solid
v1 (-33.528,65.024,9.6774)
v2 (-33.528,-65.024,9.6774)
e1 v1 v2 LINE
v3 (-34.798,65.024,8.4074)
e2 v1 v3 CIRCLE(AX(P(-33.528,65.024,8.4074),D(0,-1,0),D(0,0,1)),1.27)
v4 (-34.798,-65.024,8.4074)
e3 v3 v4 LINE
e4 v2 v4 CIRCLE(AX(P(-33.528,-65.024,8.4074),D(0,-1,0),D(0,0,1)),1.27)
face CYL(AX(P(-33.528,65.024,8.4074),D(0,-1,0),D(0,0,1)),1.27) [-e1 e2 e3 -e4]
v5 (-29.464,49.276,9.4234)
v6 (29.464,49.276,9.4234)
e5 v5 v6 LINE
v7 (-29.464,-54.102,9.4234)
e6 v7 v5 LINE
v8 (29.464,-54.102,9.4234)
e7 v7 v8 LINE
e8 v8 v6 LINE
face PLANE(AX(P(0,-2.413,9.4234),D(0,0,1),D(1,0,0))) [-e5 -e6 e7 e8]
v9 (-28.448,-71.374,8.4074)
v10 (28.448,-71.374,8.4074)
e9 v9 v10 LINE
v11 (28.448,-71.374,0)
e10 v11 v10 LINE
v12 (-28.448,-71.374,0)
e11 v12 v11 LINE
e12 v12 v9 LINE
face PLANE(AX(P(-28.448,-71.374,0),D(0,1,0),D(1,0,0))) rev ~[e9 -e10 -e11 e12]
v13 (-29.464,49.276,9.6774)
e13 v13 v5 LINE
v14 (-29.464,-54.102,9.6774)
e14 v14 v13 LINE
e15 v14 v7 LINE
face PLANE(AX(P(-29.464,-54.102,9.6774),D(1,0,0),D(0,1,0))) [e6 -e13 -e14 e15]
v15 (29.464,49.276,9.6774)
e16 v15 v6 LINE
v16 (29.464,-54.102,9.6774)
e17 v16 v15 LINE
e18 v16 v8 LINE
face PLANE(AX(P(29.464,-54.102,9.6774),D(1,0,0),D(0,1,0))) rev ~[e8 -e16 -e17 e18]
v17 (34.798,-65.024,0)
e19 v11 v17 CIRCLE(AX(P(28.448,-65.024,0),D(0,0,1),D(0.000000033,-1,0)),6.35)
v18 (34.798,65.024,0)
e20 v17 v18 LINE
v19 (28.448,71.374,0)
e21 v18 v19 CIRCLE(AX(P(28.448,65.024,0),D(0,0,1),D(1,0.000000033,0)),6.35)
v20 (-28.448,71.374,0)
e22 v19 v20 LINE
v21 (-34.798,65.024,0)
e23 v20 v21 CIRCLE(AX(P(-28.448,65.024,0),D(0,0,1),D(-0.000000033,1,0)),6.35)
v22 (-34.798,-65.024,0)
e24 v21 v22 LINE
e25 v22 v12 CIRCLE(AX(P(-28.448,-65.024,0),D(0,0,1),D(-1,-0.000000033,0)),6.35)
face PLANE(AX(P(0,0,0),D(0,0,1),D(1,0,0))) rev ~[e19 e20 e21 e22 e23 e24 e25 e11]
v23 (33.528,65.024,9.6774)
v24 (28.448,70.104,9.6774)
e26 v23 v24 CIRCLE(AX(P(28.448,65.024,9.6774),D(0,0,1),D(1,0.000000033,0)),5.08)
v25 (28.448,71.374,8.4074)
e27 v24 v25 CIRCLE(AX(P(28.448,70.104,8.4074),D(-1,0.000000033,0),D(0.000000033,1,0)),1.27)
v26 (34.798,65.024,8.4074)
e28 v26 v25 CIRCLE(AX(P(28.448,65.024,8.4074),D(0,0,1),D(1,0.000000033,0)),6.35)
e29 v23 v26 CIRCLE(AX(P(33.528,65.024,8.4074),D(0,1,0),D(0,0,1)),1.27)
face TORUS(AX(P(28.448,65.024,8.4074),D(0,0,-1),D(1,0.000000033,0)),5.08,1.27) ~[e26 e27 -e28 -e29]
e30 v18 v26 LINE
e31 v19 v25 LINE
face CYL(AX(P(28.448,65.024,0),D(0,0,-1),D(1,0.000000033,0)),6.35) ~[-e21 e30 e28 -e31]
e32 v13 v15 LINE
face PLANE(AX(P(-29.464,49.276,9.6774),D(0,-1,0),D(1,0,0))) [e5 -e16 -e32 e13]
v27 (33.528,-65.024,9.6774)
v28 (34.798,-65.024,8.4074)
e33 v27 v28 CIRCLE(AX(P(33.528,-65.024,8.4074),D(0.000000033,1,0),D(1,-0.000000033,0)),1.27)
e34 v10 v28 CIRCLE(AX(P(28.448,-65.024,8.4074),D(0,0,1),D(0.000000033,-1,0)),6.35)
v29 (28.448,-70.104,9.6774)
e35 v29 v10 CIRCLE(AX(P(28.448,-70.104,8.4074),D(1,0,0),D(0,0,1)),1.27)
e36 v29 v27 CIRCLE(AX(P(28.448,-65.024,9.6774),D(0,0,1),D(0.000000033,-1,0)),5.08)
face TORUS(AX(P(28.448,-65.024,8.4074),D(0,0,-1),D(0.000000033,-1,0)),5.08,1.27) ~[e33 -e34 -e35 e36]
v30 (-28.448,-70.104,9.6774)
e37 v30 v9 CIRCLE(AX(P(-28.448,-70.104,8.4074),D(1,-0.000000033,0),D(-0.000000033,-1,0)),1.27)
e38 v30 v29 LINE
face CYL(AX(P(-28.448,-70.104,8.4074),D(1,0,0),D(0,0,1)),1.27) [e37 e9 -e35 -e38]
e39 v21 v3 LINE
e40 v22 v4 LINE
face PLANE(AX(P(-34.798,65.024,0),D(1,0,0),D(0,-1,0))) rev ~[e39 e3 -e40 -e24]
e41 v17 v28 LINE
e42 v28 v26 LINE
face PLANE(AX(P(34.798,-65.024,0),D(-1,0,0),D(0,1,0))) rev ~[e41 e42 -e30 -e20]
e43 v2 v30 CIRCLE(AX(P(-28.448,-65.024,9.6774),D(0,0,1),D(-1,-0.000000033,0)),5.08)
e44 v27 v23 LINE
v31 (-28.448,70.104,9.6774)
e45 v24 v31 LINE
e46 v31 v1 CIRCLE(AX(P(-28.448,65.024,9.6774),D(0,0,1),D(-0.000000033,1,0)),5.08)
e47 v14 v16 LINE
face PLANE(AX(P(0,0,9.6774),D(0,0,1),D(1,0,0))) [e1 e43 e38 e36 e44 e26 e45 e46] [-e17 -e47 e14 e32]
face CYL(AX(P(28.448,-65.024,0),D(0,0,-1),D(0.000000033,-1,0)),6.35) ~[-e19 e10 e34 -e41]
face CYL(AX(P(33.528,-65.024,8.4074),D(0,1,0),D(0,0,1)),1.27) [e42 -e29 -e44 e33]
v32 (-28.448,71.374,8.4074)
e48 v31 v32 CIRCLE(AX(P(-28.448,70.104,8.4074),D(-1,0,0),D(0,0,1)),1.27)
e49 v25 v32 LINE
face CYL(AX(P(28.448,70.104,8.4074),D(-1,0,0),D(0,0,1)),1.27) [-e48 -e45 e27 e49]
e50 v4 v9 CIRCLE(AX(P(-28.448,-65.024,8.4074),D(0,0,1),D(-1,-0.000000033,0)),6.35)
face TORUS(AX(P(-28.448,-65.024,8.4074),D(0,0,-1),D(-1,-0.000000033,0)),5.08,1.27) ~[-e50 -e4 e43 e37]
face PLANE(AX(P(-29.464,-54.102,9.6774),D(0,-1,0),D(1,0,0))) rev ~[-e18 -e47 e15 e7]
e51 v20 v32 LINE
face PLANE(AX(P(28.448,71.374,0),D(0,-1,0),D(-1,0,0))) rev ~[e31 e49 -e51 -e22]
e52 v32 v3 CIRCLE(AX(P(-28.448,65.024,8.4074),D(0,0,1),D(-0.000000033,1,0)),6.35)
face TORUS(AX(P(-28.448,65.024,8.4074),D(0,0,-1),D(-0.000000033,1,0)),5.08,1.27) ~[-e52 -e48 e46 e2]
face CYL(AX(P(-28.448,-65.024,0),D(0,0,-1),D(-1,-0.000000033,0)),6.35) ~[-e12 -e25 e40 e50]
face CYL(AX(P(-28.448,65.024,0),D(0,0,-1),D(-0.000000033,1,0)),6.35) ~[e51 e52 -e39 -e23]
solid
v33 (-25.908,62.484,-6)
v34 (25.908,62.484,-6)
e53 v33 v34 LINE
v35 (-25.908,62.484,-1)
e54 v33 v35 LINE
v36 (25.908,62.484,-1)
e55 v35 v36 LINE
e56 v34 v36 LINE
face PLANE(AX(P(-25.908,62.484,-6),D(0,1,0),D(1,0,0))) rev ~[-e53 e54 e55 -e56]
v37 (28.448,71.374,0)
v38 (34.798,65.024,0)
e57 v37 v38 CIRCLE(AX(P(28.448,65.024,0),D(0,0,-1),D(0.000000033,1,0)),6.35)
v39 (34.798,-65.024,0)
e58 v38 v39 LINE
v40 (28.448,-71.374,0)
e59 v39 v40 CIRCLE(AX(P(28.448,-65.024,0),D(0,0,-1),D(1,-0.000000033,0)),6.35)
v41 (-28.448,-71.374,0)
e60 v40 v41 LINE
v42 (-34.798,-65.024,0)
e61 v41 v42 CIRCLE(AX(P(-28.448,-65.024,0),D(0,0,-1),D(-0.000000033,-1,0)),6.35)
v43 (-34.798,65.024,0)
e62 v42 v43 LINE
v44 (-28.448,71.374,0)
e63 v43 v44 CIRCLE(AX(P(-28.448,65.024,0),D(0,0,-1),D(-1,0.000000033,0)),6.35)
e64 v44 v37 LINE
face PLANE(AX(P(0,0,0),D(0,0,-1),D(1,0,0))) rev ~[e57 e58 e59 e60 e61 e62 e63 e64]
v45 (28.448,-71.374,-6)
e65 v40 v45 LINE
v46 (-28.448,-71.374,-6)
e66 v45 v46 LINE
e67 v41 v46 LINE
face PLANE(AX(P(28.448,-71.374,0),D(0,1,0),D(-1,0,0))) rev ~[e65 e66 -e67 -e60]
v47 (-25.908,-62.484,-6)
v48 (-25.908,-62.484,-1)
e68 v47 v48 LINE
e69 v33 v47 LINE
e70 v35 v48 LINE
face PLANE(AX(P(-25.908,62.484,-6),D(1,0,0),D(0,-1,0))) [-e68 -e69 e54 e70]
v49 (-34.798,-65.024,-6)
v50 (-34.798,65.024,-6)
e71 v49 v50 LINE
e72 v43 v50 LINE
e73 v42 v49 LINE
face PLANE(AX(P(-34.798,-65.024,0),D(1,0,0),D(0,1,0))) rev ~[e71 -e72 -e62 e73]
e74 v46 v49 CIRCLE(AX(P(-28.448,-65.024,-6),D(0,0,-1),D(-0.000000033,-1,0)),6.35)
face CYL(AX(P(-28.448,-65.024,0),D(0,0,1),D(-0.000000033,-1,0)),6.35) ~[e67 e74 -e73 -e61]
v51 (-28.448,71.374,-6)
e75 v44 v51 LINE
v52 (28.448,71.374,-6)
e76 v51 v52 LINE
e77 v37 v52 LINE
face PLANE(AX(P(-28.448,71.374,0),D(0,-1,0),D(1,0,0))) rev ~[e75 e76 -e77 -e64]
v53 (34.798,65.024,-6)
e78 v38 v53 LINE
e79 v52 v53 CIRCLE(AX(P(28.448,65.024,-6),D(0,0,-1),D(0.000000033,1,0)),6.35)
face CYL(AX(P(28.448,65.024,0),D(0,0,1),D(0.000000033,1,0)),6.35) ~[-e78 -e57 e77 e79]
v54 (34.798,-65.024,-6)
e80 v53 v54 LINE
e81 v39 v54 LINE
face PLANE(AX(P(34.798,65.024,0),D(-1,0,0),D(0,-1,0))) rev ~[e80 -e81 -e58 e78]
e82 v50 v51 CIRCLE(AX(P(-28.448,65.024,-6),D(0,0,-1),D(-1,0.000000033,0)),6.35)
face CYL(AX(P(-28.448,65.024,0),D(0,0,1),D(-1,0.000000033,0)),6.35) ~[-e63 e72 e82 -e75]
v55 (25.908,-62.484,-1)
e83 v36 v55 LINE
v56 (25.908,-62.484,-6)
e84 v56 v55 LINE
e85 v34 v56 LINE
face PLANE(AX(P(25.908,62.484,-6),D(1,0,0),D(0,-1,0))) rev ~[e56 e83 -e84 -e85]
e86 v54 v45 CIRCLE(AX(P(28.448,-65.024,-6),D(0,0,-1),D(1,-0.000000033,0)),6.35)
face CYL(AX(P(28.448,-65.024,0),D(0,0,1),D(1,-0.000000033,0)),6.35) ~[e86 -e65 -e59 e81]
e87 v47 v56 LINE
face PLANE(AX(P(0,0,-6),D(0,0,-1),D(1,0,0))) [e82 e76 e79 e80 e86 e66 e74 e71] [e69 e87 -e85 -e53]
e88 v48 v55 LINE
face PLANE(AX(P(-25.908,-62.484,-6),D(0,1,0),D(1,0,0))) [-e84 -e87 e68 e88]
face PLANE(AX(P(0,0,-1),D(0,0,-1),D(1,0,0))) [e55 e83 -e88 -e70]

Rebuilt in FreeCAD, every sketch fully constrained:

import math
import FreeCAD as App
import Part
import Sketcher
Q = App.Units.Quantity


def edges_at(feature, points):
    """Names of the edges that pass closest to the given points."""
    edges = feature.Shape.Edges
    near = lambda p: min(range(len(edges)), key=lambda i: edges[i].distToShape(Part.Vertex(*p))[0])
    return sorted({f"Edge{near(p) + 1}" for p in points})


def add_polygon(sketch, points):
    """Adds a closed chain of lines whose ends are joined by coincident constraints."""
    first, n = sketch.GeometryCount, len(points)
    for a, b in zip(points, points[1:] + points[:1]):
        sketch.addGeometry(Part.LineSegment(App.Vector(*a, 0), App.Vector(*b, 0)), False)
    for i in range(n):
        sketch.addConstraint(Sketcher.Constraint("Coincident", first + i, 2, first + (i + 1) % n, 1))

doc = App.newDocument("Part")
body = doc.addObject("PartDesign::Body", "Body")

sketch1 = body.newObject("Sketcher::SketchObject", "Sketch")
sketch1.AttachmentSupport = (doc.getObject("XY_Plane"), [""])
sketch1.MapMode = "FlatFace"
sketch1.addGeometry([
    Part.ArcOfCircle(Part.Circle(App.Vector(28, 65, 0), App.Vector(0, 0, 1), 6), math.radians(0), math.radians(90)),
    Part.LineSegment(App.Vector(28, 71, 0), App.Vector(-28, 71, 0)),
    Part.ArcOfCircle(Part.Circle(App.Vector(-28, 65, 0), App.Vector(0, 0, 1), 6), math.radians(90), math.radians(180)),
    Part.LineSegment(App.Vector(-35, 65, 0), App.Vector(-35, -65, 0)),
    Part.ArcOfCircle(Part.Circle(App.Vector(-28, -65, 0), App.Vector(0, 0, 1), 6), math.radians(-180), math.radians(-90)),
    Part.LineSegment(App.Vector(-28, -71, 0), App.Vector(28, -71, 0)),
    Part.ArcOfCircle(Part.Circle(App.Vector(28, -65, 0), App.Vector(0, 0, 1), 6), math.radians(-90), math.radians(0)),
    Part.LineSegment(App.Vector(35, -65, 0), App.Vector(35, 65, 0)),
], False)
sketch1.addConstraint([
    Sketcher.Constraint("Tangent", 0, 2, 1, 1),
    Sketcher.Constraint("Tangent", 1, 2, 2, 1),
    Sketcher.Constraint("Tangent", 2, 2, 3, 1),
    Sketcher.Constraint("Tangent", 3, 2, 4, 1),
    Sketcher.Constraint("Tangent", 4, 2, 5, 1),
    Sketcher.Constraint("Tangent", 5, 2, 6, 1),
    Sketcher.Constraint("Tangent", 6, 2, 7, 1),
    Sketcher.Constraint("Tangent", 7, 2, 0, 1),
    Sketcher.Constraint("Horizontal", 1),
    Sketcher.Constraint("Vertical", 3),
    Sketcher.Constraint("Horizontal", 5),
    Sketcher.Constraint("Vertical", 7),
    Sketcher.Constraint("Equal", 0, 2),
    Sketcher.Constraint("Equal", 2, 4),
    Sketcher.Constraint("Equal", 4, 6),
    Sketcher.Constraint("Symmetric", 0, 3, 4, 3, -1, 1),
    Sketcher.Constraint("Radius", 0, Q("0.25 in")),
    Sketcher.Constraint("DistanceX", 1, 2, 1, 1, Q("2.24 in")),
    Sketcher.Constraint("DistanceY", 3, 2, 3, 1, Q("5.12 in")),
])
pad1 = body.newObject("PartDesign::Pad", "Pad")
pad1.Profile = sketch1
pad1.Length = Q("0.381 in")

sketch2 = body.newObject("Sketcher::SketchObject", "Sketch001")
sketch2.AttachmentSupport = (doc.getObject("XY_Plane"), [""])
sketch2.MapMode = "FlatFace"
sketch2.AttachmentOffset = App.Placement(App.Vector(0, 0, 0.381 * 25.4), App.Rotation())
add_polygon(sketch2, [(-29, 49), (-29, -54), (29, -54), (29, 49)])
sketch2.addConstraint([
    Sketcher.Constraint("Vertical", 0),
    Sketcher.Constraint("Horizontal", 1),
    Sketcher.Constraint("Vertical", 2),
    Sketcher.Constraint("Horizontal", 3),
    Sketcher.Constraint("DistanceX", 1, 1, 1, 2, Q("2.32 in")),
    Sketcher.Constraint("DistanceY", 0, 2, 0, 1, Q("4.07 in")),
    Sketcher.Constraint("DistanceX", 0, 2, -1, 1, Q("1.16 in")),
    Sketcher.Constraint("DistanceY", 0, 2, -1, 1, Q("2.13 in")),
])
pocket1 = body.newObject("PartDesign::Pocket", "Pocket")
pocket1.Profile = sketch2
pocket1.Length = Q("0.01 in")
doc.recompute()

fillet = body.newObject("PartDesign::Fillet", "Fillet")
fillet.Base = (pocket1, edges_at(pocket1, [(-34.798, 0, 9.677)]))
fillet.Radius = Q("0.05 in")
body2 = doc.addObject("PartDesign::Body", "Body001")

sketch3 = body2.newObject("Sketcher::SketchObject", "Sketch002")
sketch3.AttachmentSupport = (doc.getObject("XY_Plane001"), [""])
sketch3.MapMode = "FlatFace"
sketch3.addGeometry([
    Part.ArcOfCircle(Part.Circle(App.Vector(28, -65, 0), App.Vector(0, 0, 1), 6), math.radians(-90), math.radians(0)),
    Part.LineSegment(App.Vector(28, -71, 0), App.Vector(-28, -71, 0)),
    Part.ArcOfCircle(Part.Circle(App.Vector(-28, -65, 0), App.Vector(0, 0, 1), 6), math.radians(-180), math.radians(-90)),
    Part.LineSegment(App.Vector(-35, -65, 0), App.Vector(-35, 65, 0)),
    Part.ArcOfCircle(Part.Circle(App.Vector(-28, 65, 0), App.Vector(0, 0, 1), 6), math.radians(90), math.radians(180)),
    Part.LineSegment(App.Vector(-28, 71, 0), App.Vector(28, 71, 0)),
    Part.ArcOfCircle(Part.Circle(App.Vector(28, 65, 0), App.Vector(0, 0, 1), 6), math.radians(0), math.radians(90)),
    Part.LineSegment(App.Vector(35, 65, 0), App.Vector(35, -65, 0)),
], False)
sketch3.addConstraint([
    Sketcher.Constraint("Tangent", 0, 1, 1, 1),
    Sketcher.Constraint("Tangent", 1, 2, 2, 2),
    Sketcher.Constraint("Tangent", 2, 1, 3, 1),
    Sketcher.Constraint("Tangent", 3, 2, 4, 2),
    Sketcher.Constraint("Tangent", 4, 1, 5, 1),
    Sketcher.Constraint("Tangent", 5, 2, 6, 2),
    Sketcher.Constraint("Tangent", 6, 1, 7, 1),
    Sketcher.Constraint("Tangent", 7, 2, 0, 2),
    Sketcher.Constraint("Horizontal", 1),
    Sketcher.Constraint("Vertical", 3),
    Sketcher.Constraint("Horizontal", 5),
    Sketcher.Constraint("Vertical", 7),
    Sketcher.Constraint("Equal", 0, 2),
    Sketcher.Constraint("Equal", 2, 4),
    Sketcher.Constraint("Equal", 4, 6),
    Sketcher.Constraint("Symmetric", 0, 3, 4, 3, -1, 1),
    Sketcher.Constraint("Radius", 0, Q("0.25 in")),
    Sketcher.Constraint("DistanceX", 1, 2, 1, 1, Q("2.24 in")),
    Sketcher.Constraint("DistanceY", 3, 1, 3, 2, Q("5.12 in")),
])
pad2 = body2.newObject("PartDesign::Pad", "Pad001")
pad2.Profile = sketch3
pad2.Length = 6
pad2.Reversed = True

sketch4 = body2.newObject("Sketcher::SketchObject", "Sketch003")
sketch4.AttachmentSupport = (doc.getObject("XY_Plane001"), [""])
sketch4.MapMode = "FlatFace"
sketch4.AttachmentOffset = App.Placement(App.Vector(0, 0, -6), App.Rotation())
add_polygon(sketch4, [(-26, -62), (-26, 62), (26, 62), (26, -62)])
sketch4.addConstraint([
    Sketcher.Constraint("Vertical", 0),
    Sketcher.Constraint("Horizontal", 1),
    Sketcher.Constraint("Vertical", 2),
    Sketcher.Constraint("Horizontal", 3),
    Sketcher.Constraint("Symmetric", 0, 2, 2, 2, -1, 1),
    Sketcher.Constraint("DistanceX", 1, 1, 1, 2, Q("2.04 in")),
    Sketcher.Constraint("DistanceY", 0, 1, 0, 2, Q("4.92 in")),
])
pocket2 = body2.newObject("PartDesign::Pocket", "Pocket001")
pocket2.Profile = sketch4
pocket2.Length = 5
pocket2.Reversed = True

doc.recompute()
